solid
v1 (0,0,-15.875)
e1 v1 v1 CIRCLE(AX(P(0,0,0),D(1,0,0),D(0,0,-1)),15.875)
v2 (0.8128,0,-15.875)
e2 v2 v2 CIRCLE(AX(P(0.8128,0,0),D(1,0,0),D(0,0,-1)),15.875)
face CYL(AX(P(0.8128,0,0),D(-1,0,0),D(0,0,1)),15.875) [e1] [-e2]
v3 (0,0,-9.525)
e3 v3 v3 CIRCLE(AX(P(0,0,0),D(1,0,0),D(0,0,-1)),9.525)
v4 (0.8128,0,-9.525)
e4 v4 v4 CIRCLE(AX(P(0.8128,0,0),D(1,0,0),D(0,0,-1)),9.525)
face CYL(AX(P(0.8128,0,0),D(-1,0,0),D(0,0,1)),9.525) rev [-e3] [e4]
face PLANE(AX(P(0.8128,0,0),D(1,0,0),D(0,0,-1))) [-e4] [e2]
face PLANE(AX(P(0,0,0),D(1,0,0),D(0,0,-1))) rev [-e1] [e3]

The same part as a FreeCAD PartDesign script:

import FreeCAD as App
import Part
import Sketcher
from FreeCAD import Vector
Q = App.Units.Quantity

doc = App.newDocument("Part")
body = doc.addObject("PartDesign::Body", "Body")

# Sketch on YZ plane
sketch1 = body.newObject("Sketcher::SketchObject", "Sketch")
sketch1.AttachmentSupport = (doc.getObject("YZ_Plane"), [""])
sketch1.MapMode = "FlatFace"
sketch1.addGeometry(Part.Circle(Vector(0, 0, 0), Vector(0, 0, 1), 15.875), False)
sketch1.addGeometry(Part.Circle(Vector(0, 0, 0), Vector(0, 0, 1), 9.525), False)
sketch1.addConstraint(Sketcher.Constraint("Coincident", 0, 3, -1, 1))
sketch1.addConstraint(Sketcher.Constraint("Coincident", 1, 3, -1, 1))
sketch1.addConstraint(Sketcher.Constraint("Diameter", 0, Q("1.25 in")))
sketch1.addConstraint(Sketcher.Constraint("Diameter", 1, Q("0.75 in")))
pad1 = body.newObject("PartDesign::Pad", "Pad")
pad1.Profile = sketch1
pad1.Length = Q("0.032 in")

doc.recompute()
